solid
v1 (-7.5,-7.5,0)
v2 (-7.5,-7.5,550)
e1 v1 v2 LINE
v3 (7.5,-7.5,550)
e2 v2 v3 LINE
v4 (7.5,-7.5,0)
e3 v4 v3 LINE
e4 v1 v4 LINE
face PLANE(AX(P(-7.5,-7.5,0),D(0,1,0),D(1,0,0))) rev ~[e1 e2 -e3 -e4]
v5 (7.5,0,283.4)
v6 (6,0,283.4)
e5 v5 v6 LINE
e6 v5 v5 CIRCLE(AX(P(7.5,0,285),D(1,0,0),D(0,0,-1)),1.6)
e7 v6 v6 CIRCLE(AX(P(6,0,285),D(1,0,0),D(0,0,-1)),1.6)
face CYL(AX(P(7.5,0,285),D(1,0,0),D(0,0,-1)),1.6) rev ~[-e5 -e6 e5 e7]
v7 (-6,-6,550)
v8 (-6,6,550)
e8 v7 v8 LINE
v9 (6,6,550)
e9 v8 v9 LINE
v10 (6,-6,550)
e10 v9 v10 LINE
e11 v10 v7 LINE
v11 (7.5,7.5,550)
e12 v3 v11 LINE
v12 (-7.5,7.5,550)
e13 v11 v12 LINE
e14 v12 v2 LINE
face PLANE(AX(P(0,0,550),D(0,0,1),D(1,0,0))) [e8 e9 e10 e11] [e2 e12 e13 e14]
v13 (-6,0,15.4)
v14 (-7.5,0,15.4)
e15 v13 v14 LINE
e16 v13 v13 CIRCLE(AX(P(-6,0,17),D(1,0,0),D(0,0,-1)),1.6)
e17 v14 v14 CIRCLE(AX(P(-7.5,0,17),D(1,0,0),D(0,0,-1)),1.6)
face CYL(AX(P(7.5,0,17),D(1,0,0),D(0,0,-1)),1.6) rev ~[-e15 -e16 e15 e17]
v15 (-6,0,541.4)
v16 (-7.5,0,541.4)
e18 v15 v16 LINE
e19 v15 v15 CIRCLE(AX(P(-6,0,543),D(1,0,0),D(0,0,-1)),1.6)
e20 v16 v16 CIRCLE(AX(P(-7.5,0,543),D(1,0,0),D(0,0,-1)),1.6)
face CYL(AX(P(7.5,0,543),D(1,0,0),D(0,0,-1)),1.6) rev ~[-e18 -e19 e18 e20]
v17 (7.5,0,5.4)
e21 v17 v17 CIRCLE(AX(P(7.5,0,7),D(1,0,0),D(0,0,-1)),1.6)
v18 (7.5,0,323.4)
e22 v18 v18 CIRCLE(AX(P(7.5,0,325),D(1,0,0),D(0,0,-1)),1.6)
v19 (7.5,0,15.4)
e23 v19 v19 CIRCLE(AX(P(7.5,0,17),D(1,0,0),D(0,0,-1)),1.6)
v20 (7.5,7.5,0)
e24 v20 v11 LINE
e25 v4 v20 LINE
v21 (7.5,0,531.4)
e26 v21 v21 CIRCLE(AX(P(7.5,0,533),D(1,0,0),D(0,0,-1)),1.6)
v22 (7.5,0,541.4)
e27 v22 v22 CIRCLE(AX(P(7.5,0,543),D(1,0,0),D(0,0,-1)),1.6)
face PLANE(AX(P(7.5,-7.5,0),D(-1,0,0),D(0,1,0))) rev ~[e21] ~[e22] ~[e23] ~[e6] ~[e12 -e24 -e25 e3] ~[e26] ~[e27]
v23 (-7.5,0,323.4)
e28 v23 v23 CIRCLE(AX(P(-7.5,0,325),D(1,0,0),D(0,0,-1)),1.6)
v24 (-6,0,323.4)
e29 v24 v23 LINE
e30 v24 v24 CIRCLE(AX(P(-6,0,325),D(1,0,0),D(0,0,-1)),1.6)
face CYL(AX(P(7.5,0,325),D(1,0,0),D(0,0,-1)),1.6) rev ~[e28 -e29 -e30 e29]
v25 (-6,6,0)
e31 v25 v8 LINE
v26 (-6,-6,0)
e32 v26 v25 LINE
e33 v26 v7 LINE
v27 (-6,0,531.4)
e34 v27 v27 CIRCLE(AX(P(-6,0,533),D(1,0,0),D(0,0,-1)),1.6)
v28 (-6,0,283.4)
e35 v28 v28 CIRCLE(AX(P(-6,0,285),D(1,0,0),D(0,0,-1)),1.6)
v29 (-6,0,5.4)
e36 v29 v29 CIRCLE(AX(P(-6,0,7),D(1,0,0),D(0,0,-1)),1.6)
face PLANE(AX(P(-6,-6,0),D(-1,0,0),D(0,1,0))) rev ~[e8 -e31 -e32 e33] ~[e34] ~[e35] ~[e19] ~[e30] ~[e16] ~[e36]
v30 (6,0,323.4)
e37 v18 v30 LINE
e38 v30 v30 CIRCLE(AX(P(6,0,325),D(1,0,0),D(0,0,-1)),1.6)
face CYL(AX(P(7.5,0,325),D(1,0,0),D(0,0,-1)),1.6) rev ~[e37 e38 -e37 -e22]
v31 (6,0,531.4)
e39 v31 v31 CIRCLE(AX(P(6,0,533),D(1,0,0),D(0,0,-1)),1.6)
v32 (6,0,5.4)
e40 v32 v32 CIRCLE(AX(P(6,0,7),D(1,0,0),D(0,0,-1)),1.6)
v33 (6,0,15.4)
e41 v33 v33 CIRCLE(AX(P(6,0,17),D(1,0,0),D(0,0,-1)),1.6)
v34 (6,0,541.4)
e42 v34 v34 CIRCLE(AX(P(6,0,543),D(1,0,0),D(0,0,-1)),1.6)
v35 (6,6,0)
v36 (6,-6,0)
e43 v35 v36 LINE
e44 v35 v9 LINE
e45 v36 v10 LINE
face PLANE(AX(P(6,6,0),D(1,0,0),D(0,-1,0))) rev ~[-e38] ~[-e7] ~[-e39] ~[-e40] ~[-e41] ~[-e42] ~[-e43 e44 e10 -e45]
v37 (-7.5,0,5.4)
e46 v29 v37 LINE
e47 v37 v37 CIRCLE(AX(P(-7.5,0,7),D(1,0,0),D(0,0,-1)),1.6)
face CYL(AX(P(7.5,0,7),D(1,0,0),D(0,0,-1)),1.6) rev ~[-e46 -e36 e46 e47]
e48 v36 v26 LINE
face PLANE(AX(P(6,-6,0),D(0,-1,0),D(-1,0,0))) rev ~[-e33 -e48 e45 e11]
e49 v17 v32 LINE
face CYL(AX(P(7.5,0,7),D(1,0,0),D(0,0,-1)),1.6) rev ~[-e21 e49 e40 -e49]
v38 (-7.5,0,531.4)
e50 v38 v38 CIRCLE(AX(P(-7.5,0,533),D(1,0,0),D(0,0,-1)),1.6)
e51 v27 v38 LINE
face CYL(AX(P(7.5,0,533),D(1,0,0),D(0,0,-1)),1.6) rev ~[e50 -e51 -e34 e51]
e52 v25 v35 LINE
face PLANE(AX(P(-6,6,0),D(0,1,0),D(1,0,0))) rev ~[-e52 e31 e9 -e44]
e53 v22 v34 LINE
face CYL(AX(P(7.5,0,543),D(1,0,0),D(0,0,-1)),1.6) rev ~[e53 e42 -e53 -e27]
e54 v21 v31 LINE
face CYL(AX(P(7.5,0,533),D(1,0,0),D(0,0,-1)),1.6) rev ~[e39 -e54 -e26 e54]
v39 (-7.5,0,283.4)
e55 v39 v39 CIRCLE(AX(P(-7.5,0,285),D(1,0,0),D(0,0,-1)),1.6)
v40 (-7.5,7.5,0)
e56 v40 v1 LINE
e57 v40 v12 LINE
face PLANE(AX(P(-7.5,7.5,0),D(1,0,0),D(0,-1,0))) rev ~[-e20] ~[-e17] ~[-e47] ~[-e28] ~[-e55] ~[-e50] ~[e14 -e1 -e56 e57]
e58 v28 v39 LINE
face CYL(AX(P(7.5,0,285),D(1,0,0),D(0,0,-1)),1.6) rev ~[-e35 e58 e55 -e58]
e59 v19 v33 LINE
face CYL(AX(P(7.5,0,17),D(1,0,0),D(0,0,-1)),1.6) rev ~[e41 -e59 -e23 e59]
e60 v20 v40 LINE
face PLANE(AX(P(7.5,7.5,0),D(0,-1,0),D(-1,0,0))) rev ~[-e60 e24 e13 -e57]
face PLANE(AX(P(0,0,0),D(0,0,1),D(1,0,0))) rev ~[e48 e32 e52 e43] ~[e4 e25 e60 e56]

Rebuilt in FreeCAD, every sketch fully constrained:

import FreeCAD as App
import Part
import Sketcher
Q = App.Units.Quantity


def add_polygon(sketch, points):
    """Adds a closed chain of lines whose ends are joined by coincident constraints."""
    first, n = sketch.GeometryCount, len(points)
    for a, b in zip(points, points[1:] + points[:1]):
        sketch.addGeometry(Part.LineSegment(App.Vector(*a, 0), App.Vector(*b, 0)), False)
    for i in range(n):
        sketch.addConstraint(Sketcher.Constraint("Coincident", first + i, 2, first + (i + 1) % n, 1))

doc = App.newDocument("Part")
body = doc.addObject("PartDesign::Body", "Body")

sketch1 = body.newObject("Sketcher::SketchObject", "Sketch")
sketch1.AttachmentSupport = (doc.getObject("XY_Plane"), [""])
sketch1.MapMode = "FlatFace"
add_polygon(sketch1, [(8, -8), (8, 8), (-8, 8), (-8, -8)])
add_polygon(sketch1, [(-6, -6), (-6, 6), (6, 6), (6, -6)])
sketch1.addConstraint([
    Sketcher.Constraint("Vertical", 0),
    Sketcher.Constraint("Horizontal", 1),
    Sketcher.Constraint("Vertical", 2),
    Sketcher.Constraint("Horizontal", 3),
    Sketcher.Constraint("Vertical", 4),
    Sketcher.Constraint("Horizontal", 5),
    Sketcher.Constraint("Vertical", 6),
    Sketcher.Constraint("Horizontal", 7),
    Sketcher.Constraint("Symmetric", 0, 2, 2, 2, -1, 1),
    Sketcher.Constraint("Symmetric", 4, 2, 6, 2, -1, 1),
    Sketcher.Constraint("Equal", 3, 0),
    Sketcher.Constraint("Equal", 7, 4),
    Sketcher.Constraint("DistanceX", 1, 2, 1, 1, Q("15 mm")),
    Sketcher.Constraint("DistanceX", 1, 2, 4, 2, Q("1.5 mm")),
])
pad1 = body.newObject("PartDesign::Pad", "Pad")
pad1.Profile = sketch1
pad1.Length = 550

sketch2 = body.newObject("Sketcher::SketchObject", "Sketch001")
sketch2.AttachmentSupport = (doc.getObject("YZ_Plane"), [""])
sketch2.MapMode = "FlatFace"
sketch2.AttachmentOffset = App.Placement(App.Vector(0, 0, 7.5), App.Rotation())
sketch2.addGeometry([
    Part.Circle(App.Vector(0, 7, 0), App.Vector(0, 0, 1), 1.6),
    Part.Circle(App.Vector(0, 17, 0), App.Vector(0, 0, 1), 1.6),
    Part.Circle(App.Vector(0, 533, 0), App.Vector(0, 0, 1), 1.6),
    Part.Circle(App.Vector(0, 543, 0), App.Vector(0, 0, 1), 1.6),
    Part.Circle(App.Vector(0, 285, 0), App.Vector(0, 0, 1), 1.6),
    Part.Circle(App.Vector(0, 325, 0), App.Vector(0, 0, 1), 1.6),
], False)
sketch2.addConstraint([
    Sketcher.Constraint("Equal", 0, 1),
    Sketcher.Constraint("Equal", 1, 2),
    Sketcher.Constraint("Equal", 2, 3),
    Sketcher.Constraint("Equal", 3, 4),
    Sketcher.Constraint("Equal", 4, 5),
    Sketcher.Constraint("PointOnObject", 0, 3, -2),
    Sketcher.Constraint("PointOnObject", 1, 3, -2),
    Sketcher.Constraint("PointOnObject", 2, 3, -2),
    Sketcher.Constraint("PointOnObject", 3, 3, -2),
    Sketcher.Constraint("PointOnObject", 4, 3, -2),
    Sketcher.Constraint("PointOnObject", 5, 3, -2),
    Sketcher.Constraint("Diameter", 0, Q("3.2 mm")),
    Sketcher.Constraint("DistanceY", -1, 1, 0, 3, Q("7 mm")),
    Sketcher.Constraint("DistanceY", 0, 3, 1, 3, Q("10 mm")),
    Sketcher.Constraint("DistanceY", 2, 3, 3, 3, Q("10 mm")),
    Sketcher.Constraint("DistanceY", 4, 3, 5, 3, Q("40 mm")),
    Sketcher.Constraint("DistanceY", -1, 1, 2, 3, Q("533 mm")),
    Sketcher.Constraint("DistanceY", -1, 1, 4, 3, Q("285 mm")),
])
pocket1 = body.newObject("PartDesign::Pocket", "Pocket")
pocket1.Profile = sketch2
pocket1.Type = "ThroughAll"

doc.recompute()
